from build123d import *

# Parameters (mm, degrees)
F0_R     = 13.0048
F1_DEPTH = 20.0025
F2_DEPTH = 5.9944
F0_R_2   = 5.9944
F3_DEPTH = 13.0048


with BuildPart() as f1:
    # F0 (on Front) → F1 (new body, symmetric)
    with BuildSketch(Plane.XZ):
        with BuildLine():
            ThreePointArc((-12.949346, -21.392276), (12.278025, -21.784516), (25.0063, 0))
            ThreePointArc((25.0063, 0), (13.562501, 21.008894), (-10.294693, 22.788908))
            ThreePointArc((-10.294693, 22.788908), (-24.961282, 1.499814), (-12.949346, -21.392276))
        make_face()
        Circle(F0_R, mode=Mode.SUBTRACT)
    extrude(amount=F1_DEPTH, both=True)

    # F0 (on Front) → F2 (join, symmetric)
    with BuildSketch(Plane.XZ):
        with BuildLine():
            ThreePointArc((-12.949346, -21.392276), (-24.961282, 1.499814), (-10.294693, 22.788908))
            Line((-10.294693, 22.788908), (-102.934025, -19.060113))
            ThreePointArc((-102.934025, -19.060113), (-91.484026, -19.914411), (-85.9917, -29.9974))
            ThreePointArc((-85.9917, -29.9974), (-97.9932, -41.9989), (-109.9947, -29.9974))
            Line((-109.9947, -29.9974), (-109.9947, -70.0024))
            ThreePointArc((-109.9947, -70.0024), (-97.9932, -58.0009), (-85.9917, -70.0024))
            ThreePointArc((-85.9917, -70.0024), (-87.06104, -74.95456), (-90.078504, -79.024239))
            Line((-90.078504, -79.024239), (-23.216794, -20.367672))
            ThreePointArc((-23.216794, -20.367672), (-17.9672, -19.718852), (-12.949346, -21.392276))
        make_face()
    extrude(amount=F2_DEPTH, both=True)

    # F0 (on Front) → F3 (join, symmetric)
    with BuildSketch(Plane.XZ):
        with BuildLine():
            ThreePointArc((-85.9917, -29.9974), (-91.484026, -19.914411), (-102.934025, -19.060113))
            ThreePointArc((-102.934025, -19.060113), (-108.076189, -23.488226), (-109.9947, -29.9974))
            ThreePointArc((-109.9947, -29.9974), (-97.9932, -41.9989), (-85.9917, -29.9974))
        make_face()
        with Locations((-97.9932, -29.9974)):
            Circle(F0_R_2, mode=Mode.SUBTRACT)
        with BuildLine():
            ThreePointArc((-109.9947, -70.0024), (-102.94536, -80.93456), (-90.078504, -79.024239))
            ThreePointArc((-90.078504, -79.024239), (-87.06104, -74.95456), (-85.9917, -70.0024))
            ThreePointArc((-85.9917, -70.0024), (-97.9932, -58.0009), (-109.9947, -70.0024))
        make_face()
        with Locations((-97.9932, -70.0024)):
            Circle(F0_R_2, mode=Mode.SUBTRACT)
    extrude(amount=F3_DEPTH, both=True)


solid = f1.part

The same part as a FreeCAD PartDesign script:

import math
import FreeCAD as App
import Part
import Sketcher

V = App.Vector
Q = App.Units.Quantity

doc = App.newDocument("Part")
body = doc.addObject("PartDesign::Body", "Body")

sketch1 = body.newObject("Sketcher::SketchObject", "Sketch")
sketch1.AttachmentSupport = (doc.getObject("XZ_Plane"), [""])
sketch1.MapMode = "FlatFace"
sketch1.addGeometry([
    Part.ArcOfCircle(Part.Circle(V(0, 0, 0), V(0, 0, 1), 25.0063), math.radians(-121.187698), math.radians(0)),
    Part.ArcOfCircle(Part.Circle(V(0.000001, 0.000001, 0), V(0, 0, 1), 25.006299), math.radians(-0.000002), math.radians(114.310666)),
    Part.ArcOfCircle(Part.Circle(V(0, 0, 0), V(0, 0, 1), 25.0063), math.radians(114.310663), math.radians(238.812302)),
    Part.Circle(V(0, 0, 0), V(0, 0, 1), 13.0048),
], False)
sketch1.addConstraint([
    Sketcher.Constraint("Tangent", 0, 2, 1, 1),
    Sketcher.Constraint("Tangent", 1, 2, 2, 1),
    Sketcher.Constraint("Tangent", 2, 2, 0, 1),
    Sketcher.Constraint("Coincident", 0, 3, -1, 1),
    Sketcher.Constraint("Coincident", 3, 3, -1, 1),
    Sketcher.Constraint("PointOnObject", 0, 2, -1),
    Sketcher.Constraint("Diameter", 3, Q("1.024 in")),
    Sketcher.Constraint("Radius", 0, Q("0.9845 in")),
    Sketcher.Constraint("DistanceY", -1, 1, 1, 2, Q("22.788908 mm")),
    Sketcher.Constraint("DistanceX", 2, 2, -1, 1, Q("12.949346 mm")),
])
pad1 = body.newObject("PartDesign::Pad", "Pad")
pad1.Profile = sketch1
pad1.Length = Q("1.575 in")
pad1.Midplane = True

sketch2 = body.newObject("Sketcher::SketchObject", "Sketch001")
sketch2.AttachmentSupport = (doc.getObject("XZ_Plane"), [""])
sketch2.MapMode = "FlatFace"
sketch2.addGeometry([
    Part.ArcOfCircle(Part.Circle(V(0, 0, 0), V(0, 0, 1), 25.0063), math.radians(114.310663), math.radians(238.812302)),
    Part.LineSegment(V(-10.294693, 22.788908, 0), V(-102.934025, -19.060113, 0)),
    Part.ArcOfCircle(Part.Circle(V(-97.993199, -29.997399, 0), V(0, 0, 1), 12.001499), math.radians(-0.000004), math.radians(114.310668)),
    Part.ArcOfCircle(Part.Circle(V(-97.9932, -29.9974, 0), V(0, 0, 1), 12.0015), math.radians(180), math.radians(360)),
    Part.LineSegment(V(-109.9947, -29.9974, 0), V(-109.9947, -70.0024, 0)),
    Part.ArcOfCircle(Part.Circle(V(-97.9932, -70.0024, 0), V(0, 0, 1), 12.0015), math.radians(0), math.radians(180)),
    Part.ArcOfCircle(Part.Circle(V(-97.993194, -70.002402, 0), V(0, 0, 1), 12.001494), math.radians(-48.740125), math.radians(0.000011)),
    Part.LineSegment(V(-90.078504, -79.024239, 0), V(-23.216794, -20.367672, 0)),
    Part.ArcOfCircle(Part.Circle(V(-19.157668, -31.648402, 0), V(0, 0, 1), 11.988802), math.radians(58.812302), math.radians(109.790169)),
], False)
sketch2.addConstraint([
    Sketcher.Constraint("Tangent", 0, 1, 1, 1),
    Sketcher.Constraint("Tangent", 1, 2, 2, 2),
    Sketcher.Constraint("Tangent", 2, 1, 3, 2),
    Sketcher.Constraint("Tangent", 3, 1, 4, 1),
    Sketcher.Constraint("Tangent", 4, 2, 5, 2),
    Sketcher.Constraint("Tangent", 5, 1, 6, 2),
    Sketcher.Constraint("Tangent", 6, 1, 7, 1),
    Sketcher.Constraint("Coincident", 7, 2, 8, 2),
    Sketcher.Constraint("Tangent", 8, 1, 0, 2),
    Sketcher.Constraint("Vertical", 4),
    Sketcher.Constraint("Coincident", 0, 3, -1, 1),
    Sketcher.Constraint("Equal", 2, 3),
    Sketcher.Constraint("Equal", 3, 5),
    Sketcher.Constraint("Horizontal", 3, 3, 2, 1),
    Sketcher.Constraint("Horizontal", 4, 2, 5, 1),
    Sketcher.Constraint("Radius", 8, Q("0.4720001 in")),
    Sketcher.Constraint("Radius", 0, Q("0.9845 in")),
    Sketcher.Constraint("Radius", 2, Q("0.4725 in")),
    Sketcher.Constraint("DistanceY", 4, 2, 4, 1, Q("1.575 in")),
    Sketcher.Constraint("DistanceY", 6, 3, 8, 3, Q("1.51 in")),
    Sketcher.Constraint("DistanceX", 2, 3, -1, 1, Q("3.858 in")),
    Sketcher.Constraint("DistanceY", 2, 3, -1, 1, Q("1.181 in")),
    Sketcher.Constraint("Radius", 6, Q("12.001494 mm")),
    Sketcher.Constraint("DistanceX", 7, 2, 0, 1, Q("12.922101 mm")),
])
pad2 = body.newObject("PartDesign::Pad", "Pad001")
pad2.Profile = sketch2
pad2.Length = Q("0.472 in")
pad2.Midplane = True

sketch3 = body.newObject("Sketcher::SketchObject", "Sketch002")
sketch3.AttachmentSupport = (doc.getObject("XZ_Plane"), [""])
sketch3.MapMode = "FlatFace"
sketch3.addGeometry([
    Part.ArcOfCircle(Part.Circle(V(-97.993199, -29.997399, 0), V(0, 0, 1), 12.001499), math.radians(-0.000004), math.radians(114.310668)),
    Part.ArcOfCircle(Part.Circle(V(-97.993203, -29.997398, 0), V(0, 0, 1), 12.001497), math.radians(114.310653), math.radians(180.000008)),
    Part.ArcOfCircle(Part.Circle(V(-97.9932, -29.9974, 0), V(0, 0, 1), 12.0015), math.radians(180), math.radians(360)),
    Part.Circle(V(-97.9932, -29.9974, 0), V(0, 0, 1), 5.9944),
    Part.ArcOfCircle(Part.Circle(V(-97.993201, -70.002401, 0), V(0, 0, 1), 12.001499), math.radians(179.999996), math.radians(311.259895)),
    Part.ArcOfCircle(Part.Circle(V(-97.993194, -70.002402, 0), V(0, 0, 1), 12.001494), math.radians(-48.740125), math.radians(0.000011)),
    Part.ArcOfCircle(Part.Circle(V(-97.9932, -70.0024, 0), V(0, 0, 1), 12.0015), math.radians(0), math.radians(180)),
    Part.Circle(V(-97.9932, -70.0024, 0), V(0, 0, 1), 5.9944),
], False)
sketch3.addConstraint([
    Sketcher.Constraint("Tangent", 0, 2, 1, 1),
    Sketcher.Constraint("Tangent", 1, 2, 2, 1),
    Sketcher.Constraint("Tangent", 2, 2, 0, 1),
    Sketcher.Constraint("Tangent", 4, 2, 5, 1),
    Sketcher.Constraint("Tangent", 5, 2, 6, 1),
    Sketcher.Constraint("Tangent", 6, 2, 4, 1),
    Sketcher.Constraint("Coincident", 3, 3, 0, 3),
    Sketcher.Constraint("Coincident", 7, 3, 4, 3),
    Sketcher.Constraint("Equal", 2, 4),
    Sketcher.Constraint("Equal", 3, 7),
    Sketcher.Constraint("Horizontal", 3, 3, 1, 2),
    Sketcher.Constraint("Horizontal", 1, 2, 2, 2),
    Sketcher.Constraint("Horizontal", 7, 3, 5, 2),
    Sketcher.Constraint("Horizontal", 5, 2, 6, 2),
    Sketcher.Constraint("Vertical", 3, 3, 4, 3),
    Sketcher.Constraint("Diameter", 3, Q("0.472 in")),
    Sketcher.Constraint("Radius", 0, Q("0.4725 in")),
    Sketcher.Constraint("DistanceX", 0, 3, -1, 1, Q("3.858 in")),
    Sketcher.Constraint("DistanceY", 0, 3, -1, 1, Q("1.181 in")),
    Sketcher.Constraint("DistanceY", 4, 3, -1, 1, Q("2.756 in")),
    Sketcher.Constraint("DistanceY", 4, 2, -1, 1, Q("79.024239 mm")),
    Sketcher.Constraint("DistanceX", 0, 2, -1, 1, Q("102.934025 mm")),
])
pad3 = body.newObject("PartDesign::Pad", "Pad002")
pad3.Profile = sketch3
pad3.Length = Q("1.024 in")
pad3.Midplane = True

doc.recompute()
